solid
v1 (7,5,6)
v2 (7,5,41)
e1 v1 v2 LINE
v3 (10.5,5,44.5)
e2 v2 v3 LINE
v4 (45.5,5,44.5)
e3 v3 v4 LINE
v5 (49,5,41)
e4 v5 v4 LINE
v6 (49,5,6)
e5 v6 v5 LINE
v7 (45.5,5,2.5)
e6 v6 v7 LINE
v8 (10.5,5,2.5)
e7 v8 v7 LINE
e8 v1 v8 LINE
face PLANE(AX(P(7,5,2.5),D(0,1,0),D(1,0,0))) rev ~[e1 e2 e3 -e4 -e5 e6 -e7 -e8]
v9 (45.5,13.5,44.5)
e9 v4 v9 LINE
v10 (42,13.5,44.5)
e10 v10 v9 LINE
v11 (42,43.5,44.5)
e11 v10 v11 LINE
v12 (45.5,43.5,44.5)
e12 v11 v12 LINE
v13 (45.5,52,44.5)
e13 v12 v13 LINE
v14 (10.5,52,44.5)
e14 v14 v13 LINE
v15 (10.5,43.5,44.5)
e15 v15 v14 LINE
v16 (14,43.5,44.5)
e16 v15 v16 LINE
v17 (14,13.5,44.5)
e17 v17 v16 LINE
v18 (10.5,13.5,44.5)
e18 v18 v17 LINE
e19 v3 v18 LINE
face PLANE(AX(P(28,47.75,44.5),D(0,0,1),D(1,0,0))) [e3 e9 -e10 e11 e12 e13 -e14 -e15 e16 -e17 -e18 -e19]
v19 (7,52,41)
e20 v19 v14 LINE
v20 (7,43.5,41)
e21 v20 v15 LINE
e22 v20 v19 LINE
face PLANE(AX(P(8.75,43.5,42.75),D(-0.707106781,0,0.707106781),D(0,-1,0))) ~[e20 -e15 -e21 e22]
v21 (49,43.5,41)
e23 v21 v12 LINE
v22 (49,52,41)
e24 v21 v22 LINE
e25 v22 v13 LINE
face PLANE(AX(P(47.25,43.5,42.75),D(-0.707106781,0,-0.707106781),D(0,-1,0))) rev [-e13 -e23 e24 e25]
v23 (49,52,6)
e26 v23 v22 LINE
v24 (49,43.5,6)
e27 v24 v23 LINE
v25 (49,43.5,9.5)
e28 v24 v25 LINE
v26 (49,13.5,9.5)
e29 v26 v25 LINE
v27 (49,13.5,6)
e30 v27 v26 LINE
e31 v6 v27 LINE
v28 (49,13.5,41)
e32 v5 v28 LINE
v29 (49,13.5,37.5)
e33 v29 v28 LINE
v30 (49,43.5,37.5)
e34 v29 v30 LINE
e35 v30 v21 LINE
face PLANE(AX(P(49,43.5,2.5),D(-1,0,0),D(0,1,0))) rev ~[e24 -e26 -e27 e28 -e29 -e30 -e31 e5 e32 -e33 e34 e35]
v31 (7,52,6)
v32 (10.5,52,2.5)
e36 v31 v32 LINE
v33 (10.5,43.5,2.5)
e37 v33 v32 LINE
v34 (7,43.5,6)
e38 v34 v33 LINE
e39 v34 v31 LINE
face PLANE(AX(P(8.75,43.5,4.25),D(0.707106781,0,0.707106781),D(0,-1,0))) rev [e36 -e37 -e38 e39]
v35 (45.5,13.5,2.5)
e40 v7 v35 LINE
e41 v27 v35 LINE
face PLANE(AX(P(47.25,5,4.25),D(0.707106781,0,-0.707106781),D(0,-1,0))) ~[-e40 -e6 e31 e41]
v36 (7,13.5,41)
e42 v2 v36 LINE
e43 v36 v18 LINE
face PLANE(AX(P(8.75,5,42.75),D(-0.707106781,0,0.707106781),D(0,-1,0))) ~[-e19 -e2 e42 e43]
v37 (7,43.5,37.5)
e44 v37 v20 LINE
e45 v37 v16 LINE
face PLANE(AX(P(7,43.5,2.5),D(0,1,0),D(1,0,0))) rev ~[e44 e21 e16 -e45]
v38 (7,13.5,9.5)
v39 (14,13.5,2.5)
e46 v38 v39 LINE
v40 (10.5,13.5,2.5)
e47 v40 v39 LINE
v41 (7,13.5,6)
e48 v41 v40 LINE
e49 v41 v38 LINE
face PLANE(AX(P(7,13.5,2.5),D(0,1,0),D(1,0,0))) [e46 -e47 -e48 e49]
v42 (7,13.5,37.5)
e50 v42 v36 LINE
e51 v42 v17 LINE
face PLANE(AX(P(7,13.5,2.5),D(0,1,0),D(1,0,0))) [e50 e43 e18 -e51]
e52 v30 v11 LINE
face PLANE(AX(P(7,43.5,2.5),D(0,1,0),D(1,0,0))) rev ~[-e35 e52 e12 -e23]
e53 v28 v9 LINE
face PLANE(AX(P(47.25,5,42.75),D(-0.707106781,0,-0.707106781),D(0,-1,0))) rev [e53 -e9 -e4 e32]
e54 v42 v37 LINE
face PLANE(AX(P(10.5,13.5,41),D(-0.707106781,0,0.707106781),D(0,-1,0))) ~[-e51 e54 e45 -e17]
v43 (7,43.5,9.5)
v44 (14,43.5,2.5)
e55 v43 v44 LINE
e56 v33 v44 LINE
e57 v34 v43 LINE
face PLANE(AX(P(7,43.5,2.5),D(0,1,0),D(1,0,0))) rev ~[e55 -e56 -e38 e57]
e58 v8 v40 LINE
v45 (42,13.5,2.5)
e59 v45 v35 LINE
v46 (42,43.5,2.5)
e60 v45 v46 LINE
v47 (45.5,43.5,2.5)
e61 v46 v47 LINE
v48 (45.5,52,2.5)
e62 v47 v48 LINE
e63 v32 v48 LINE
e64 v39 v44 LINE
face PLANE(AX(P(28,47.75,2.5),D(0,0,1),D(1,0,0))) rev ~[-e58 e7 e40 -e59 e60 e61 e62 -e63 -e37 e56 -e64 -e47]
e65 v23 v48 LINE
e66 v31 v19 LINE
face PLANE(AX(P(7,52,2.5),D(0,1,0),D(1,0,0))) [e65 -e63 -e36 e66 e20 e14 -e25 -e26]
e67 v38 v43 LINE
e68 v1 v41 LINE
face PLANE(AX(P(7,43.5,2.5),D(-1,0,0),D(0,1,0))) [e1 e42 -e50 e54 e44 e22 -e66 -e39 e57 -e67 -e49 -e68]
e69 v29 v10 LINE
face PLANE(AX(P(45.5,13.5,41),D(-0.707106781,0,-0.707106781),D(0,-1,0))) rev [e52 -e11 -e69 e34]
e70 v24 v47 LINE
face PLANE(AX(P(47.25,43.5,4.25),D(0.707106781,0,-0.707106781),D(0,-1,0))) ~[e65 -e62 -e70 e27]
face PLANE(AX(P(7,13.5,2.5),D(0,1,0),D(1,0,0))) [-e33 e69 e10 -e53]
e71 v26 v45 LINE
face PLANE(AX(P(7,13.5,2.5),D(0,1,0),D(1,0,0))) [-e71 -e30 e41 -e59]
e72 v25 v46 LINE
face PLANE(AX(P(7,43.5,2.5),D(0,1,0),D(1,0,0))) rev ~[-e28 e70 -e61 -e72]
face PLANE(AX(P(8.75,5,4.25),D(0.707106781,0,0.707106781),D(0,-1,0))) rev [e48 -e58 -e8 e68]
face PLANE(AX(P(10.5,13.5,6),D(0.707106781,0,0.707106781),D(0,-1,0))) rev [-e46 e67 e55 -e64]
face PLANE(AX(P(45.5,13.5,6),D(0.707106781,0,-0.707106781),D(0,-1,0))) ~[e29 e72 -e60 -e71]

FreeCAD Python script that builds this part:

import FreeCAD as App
import Part
import Sketcher
Q = App.Units.Quantity


def edges_at(feature, points):
    """Names of the edges that pass closest to the given points."""
    edges = feature.Shape.Edges
    near = lambda p: min(range(len(edges)), key=lambda i: edges[i].distToShape(Part.Vertex(*p))[0])
    return sorted({f"Edge{near(p) + 1}" for p in points})


def add_polygon(sketch, points):
    """Adds a closed chain of lines whose ends are joined by coincident constraints."""
    first, n = sketch.GeometryCount, len(points)
    for a, b in zip(points, points[1:] + points[:1]):
        sketch.addGeometry(Part.LineSegment(App.Vector(*a, 0), App.Vector(*b, 0)), False)
    for i in range(n):
        sketch.addConstraint(Sketcher.Constraint("Coincident", first + i, 2, first + (i + 1) % n, 1))

doc = App.newDocument("Part")
body = doc.addObject("PartDesign::Body", "Body")

# Sketch on XY plane
sketch1 = body.newObject("Sketcher::SketchObject", "Sketch")
sketch1.AttachmentSupport = (doc.getObject("XY_Plane"), [""])
sketch1.MapMode = "FlatFace"
sketch1.AttachmentOffset = App.Placement(App.Vector(0, 0, 2.5), App.Rotation())
add_polygon(sketch1, [(7, 52), (7, 44), (49, 44), (49, 52)])  # lines 0-3
sketch1.addConstraint(Sketcher.Constraint("Vertical", 0))
sketch1.addConstraint(Sketcher.Constraint("Horizontal", 1))
sketch1.addConstraint(Sketcher.Constraint("Vertical", 2))
sketch1.addConstraint(Sketcher.Constraint("Horizontal", 3))
sketch1.addConstraint(Sketcher.Constraint("DistanceX", 1, 1, 1, 2, Q("42 mm")))
sketch1.addConstraint(Sketcher.Constraint("DistanceY", 0, 2, 0, 1, Q("8.5 mm")))
sketch1.addConstraint(Sketcher.Constraint("DistanceX", -1, 1, 0, 2, Q("7 mm")))
sketch1.addConstraint(Sketcher.Constraint("DistanceY", -1, 1, 2, 2, Q("52 mm")))
pad1 = body.newObject("PartDesign::Pad", "Pad")
pad1.Profile = sketch1
pad1.Length = 42
doc.recompute()

chamfer = body.newObject("PartDesign::Chamfer", "Chamfer")
chamfer.Base = (pad1, edges_at(pad1, [
    (7, 47.75, 44.5),
    (7, 47.75, 2.5),
    (49, 47.75, 44.5),
    (49, 47.75, 2.5),
]))
chamfer.Size = 3.5
body2 = doc.addObject("PartDesign::Body", "Body001")

# Sketch on XY plane
sketch2 = body2.newObject("Sketcher::SketchObject", "Sketch001")
sketch2.AttachmentSupport = (doc.getObject("XY_Plane001"), [""])
sketch2.MapMode = "FlatFace"
sketch2.AttachmentOffset = App.Placement(App.Vector(0, 0, 2.5), App.Rotation())
add_polygon(sketch2, [(7, 44), (7, 14), (49, 14), (49, 44)])  # lines 0-3
sketch2.addConstraint(Sketcher.Constraint("Vertical", 0))
sketch2.addConstraint(Sketcher.Constraint("Horizontal", 1))
sketch2.addConstraint(Sketcher.Constraint("Vertical", 2))
sketch2.addConstraint(Sketcher.Constraint("Horizontal", 3))
sketch2.addConstraint(Sketcher.Constraint("DistanceX", 1, 1, 1, 2, Q("42 mm")))
sketch2.addConstraint(Sketcher.Constraint("DistanceY", 0, 2, 0, 1, Q("30 mm")))
sketch2.addConstraint(Sketcher.Constraint("DistanceX", -1, 1, 0, 2, Q("7 mm")))
sketch2.addConstraint(Sketcher.Constraint("DistanceY", -1, 1, 0, 2, Q("13.5 mm")))
pad2 = body2.newObject("PartDesign::Pad", "Pad001")
pad2.Profile = sketch2
pad2.Length = 42
doc.recompute()

chamfer2 = body2.newObject("PartDesign::Chamfer", "Chamfer001")
chamfer2.Base = (pad2, edges_at(pad2, [
    (7, 28.5, 44.5),
    (7, 28.5, 2.5),
    (49, 28.5, 44.5),
    (49, 28.5, 2.5),
]))
chamfer2.Size = 7
body3 = doc.addObject("PartDesign::Body", "Body002")
body3.AllowCompound = True

# Sketch on XY plane
sketch3 = body3.newObject("Sketcher::SketchObject", "Sketch002")
sketch3.AttachmentSupport = (doc.getObject("XY_Plane002"), [""])
sketch3.MapMode = "FlatFace"
sketch3.AttachmentOffset = App.Placement(App.Vector(0, 0, 2.5), App.Rotation())
add_polygon(sketch3, [(7, 14), (7, 5), (49, 5), (49, 14)])  # lines 0-3
sketch3.addConstraint(Sketcher.Constraint("Vertical", 0))
sketch3.addConstraint(Sketcher.Constraint("Horizontal", 1))
sketch3.addConstraint(Sketcher.Constraint("Vertical", 2))
sketch3.addConstraint(Sketcher.Constraint("Horizontal", 3))
sketch3.addConstraint(Sketcher.Constraint("DistanceX", 1, 1, 1, 2, Q("42 mm")))
sketch3.addConstraint(Sketcher.Constraint("DistanceY", 0, 2, 0, 1, Q("8.5 mm")))
sketch3.addConstraint(Sketcher.Constraint("DistanceX", -1, 1, 0, 2, Q("7 mm")))
sketch3.addConstraint(Sketcher.Constraint("DistanceY", -1, 1, 0, 2, Q("5 mm")))
pad3 = body3.newObject("PartDesign::Pad", "Pad002")
pad3.Profile = sketch3
pad3.Length = 42
doc.recompute()

chamfer3 = body3.newObject("PartDesign::Chamfer", "Chamfer002")
chamfer3.Base = (pad3, edges_at(pad3, [
    (7, 9.25, 44.5),
    (7, 9.25, 2.5),
    (49, 9.25, 44.5),
    (49, 9.25, 2.5),
]))
chamfer3.Size = 3.5
doc.recompute()

boolean = body3.newObject("PartDesign::Boolean", "Boolean")
boolean.Type = "Fuse"
boolean.addObjects([body])
doc.recompute()

boolean2 = body3.newObject("PartDesign::Boolean", "Boolean001")
boolean2.Type = "Fuse"
boolean2.addObjects([body2])

doc.recompute()
